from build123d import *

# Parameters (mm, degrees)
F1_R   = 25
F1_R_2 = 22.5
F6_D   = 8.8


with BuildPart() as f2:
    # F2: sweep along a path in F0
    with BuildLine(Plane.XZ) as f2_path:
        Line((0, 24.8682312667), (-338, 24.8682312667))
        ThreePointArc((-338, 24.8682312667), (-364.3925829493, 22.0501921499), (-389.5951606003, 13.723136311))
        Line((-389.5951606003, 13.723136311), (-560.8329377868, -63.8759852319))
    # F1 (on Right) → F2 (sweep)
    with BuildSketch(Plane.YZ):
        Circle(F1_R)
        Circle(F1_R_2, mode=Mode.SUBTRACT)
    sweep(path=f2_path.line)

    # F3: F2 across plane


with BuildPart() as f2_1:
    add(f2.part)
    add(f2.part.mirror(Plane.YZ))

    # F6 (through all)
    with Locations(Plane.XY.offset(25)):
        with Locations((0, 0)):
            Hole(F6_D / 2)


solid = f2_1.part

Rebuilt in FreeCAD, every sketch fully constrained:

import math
import FreeCAD as App
import Part
import Sketcher
from FreeCAD import Vector
Q = App.Units.Quantity

doc = App.newDocument("Part")
params = doc.addObject("Spreadsheet::Sheet", "Params")
for row, (alias, value) in enumerate([
    ("sketch1_diameter", "50 mm"),
    ("sketch1_diameter2", "45 mm"),
    ("sketch2_radius", "125 mm"),
    ("sketch2_width", "338 mm"),
    ("sketch2_length", "188 mm"),
    ("sketch3_diameter", "8.8 mm"),
    ("hole_diameter", "8.8 mm"),
], start=1):
    params.set(f"A{row}", alias)
    params.set(f"B{row}", "=" + value)
    params.setAlias(f"B{row}", alias)

body = doc.addObject("PartDesign::Body", "Body")

sketch1 = doc.addObject("Sketcher::SketchObject", "Sketch")
body.addObject(sketch1)
sketch1.AttachmentSupport = (doc.YZ_Plane, [""])
sketch1.MapMode = "FlatFace"
sketch1.addGeometry(Part.Circle(Vector(0, 0, 0), Vector(0, 0, 1), 25), False)
sketch1.addGeometry(Part.Circle(Vector(0, 0, 0), Vector(0, 0, 1), 22.5), False)
sketch1.addConstraint(Sketcher.Constraint("Coincident", 0, 3, -1, 1))
sketch1.addConstraint(Sketcher.Constraint("Coincident", 1, 3, -1, 1))
sketch1.addConstraint(Sketcher.Constraint("Diameter", 0, Q("50 mm")))
sketch1.addConstraint(Sketcher.Constraint("Diameter", 1, Q("45 mm")))
sketch1.setExpression("Constraints[2]", "Params.sketch1_diameter")
sketch1.setExpression("Constraints[3]", "Params.sketch1_diameter2")

sketch2 = doc.addObject("Sketcher::SketchObject", "Sketch001")
body.addObject(sketch2)
sketch2.AttachmentSupport = (doc.XZ_Plane, [""])
sketch2.MapMode = "FlatFace"
sketch2.addGeometry(Part.LineSegment(Vector(0, 24.868231, 0), Vector(-338, 24.868231, 0)), False)
sketch2.addGeometry(Part.ArcOfCircle(Part.Circle(Vector(-338, -100.131769, 0), Vector(0, 0, 1), 125), math.radians(90), math.radians(114.378413)), False)
sketch2.addGeometry(Part.LineSegment(Vector(-389.595161, 13.723136, 0), Vector(-560.832938, -63.875985, 0)), False)
sketch2.addConstraint(Sketcher.Constraint("Tangent", 0, 2, 1, 1))
sketch2.addConstraint(Sketcher.Constraint("Tangent", 1, 2, 2, 1))
sketch2.addConstraint(Sketcher.Constraint("Horizontal", 0))
sketch2.addConstraint(Sketcher.Constraint("PointOnObject", 0, 1, -2))
sketch2.addConstraint(Sketcher.Constraint("Radius", 1, Q("125 mm")))
sketch2.addConstraint(Sketcher.Constraint("DistanceX", 0, 2, 0, 1, Q("338 mm")))
sketch2.addConstraint(Sketcher.Constraint("Distance", 2, Q("188 mm")))
sketch2.addConstraint(Sketcher.Constraint("DistanceY", 1, 3, -1, 1, Q("100.131769 mm")))
sketch2.addConstraint(Sketcher.Constraint("DistanceX", 1, 2, -1, 1, Q("389.595161 mm")))
sketch2.setExpression("Constraints[4]", "Params.sketch2_radius")
sketch2.setExpression("Constraints[5]", "Params.sketch2_width")
sketch2.setExpression("Constraints[6]", "Params.sketch2_length")
doc.recompute()

additivepipe = doc.addObject("PartDesign::AdditivePipe", "AdditivePipe")
body.addObject(additivepipe)
additivepipe.Profile = sketch1
additivepipe.Spine = (sketch2, ["Edge1", "Edge2", "Edge3"])
body2 = doc.addObject("PartDesign::Body", "Body001")
doc.recompute()

body2.BaseFeature = body
doc.recompute()

mirroring = doc.addObject("Part::Mirroring", "Mirroring")
mirroring.Source = body
mirroring.Base = Vector(0, 0, 0)
mirroring.Normal = Vector(1, 0, 0)
body3 = doc.addObject("PartDesign::Body", "Body002")
body3.BaseFeature = mirroring
boolean = doc.addObject("PartDesign::Boolean", "Boolean")
body2.addObject(boolean)
boolean.Type = "Fuse"
boolean.addObjects([body3])
doc.recompute()

sketch3 = doc.addObject("Sketcher::SketchObject", "Sketch002")
body2.addObject(sketch3)
sketch3.AttachmentSupport = (doc.getObject("XY_Plane001"), [""])
sketch3.MapMode = "FlatFace"
sketch3.AttachmentOffset = App.Placement(Vector(0, 0, 25), App.Rotation())
sketch3.addGeometry(Part.Circle(Vector(0, 0, 0), Vector(0, 0, 1), 4.4), False)
sketch3.addConstraint(Sketcher.Constraint("Coincident", 0, 3, -1, 1))
sketch3.addConstraint(Sketcher.Constraint("Diameter", 0, Q("8.8 mm")))
sketch3.setExpression("Constraints[1]", "Params.sketch3_diameter")
doc.recompute()
hole = doc.addObject("PartDesign::Hole", "Hole")
body2.addObject(hole)
hole.Profile = sketch3
hole.ThreadType = "None"
hole.setExpression("Diameter", "Params.hole_diameter")
hole.DepthType = "ThroughAll"
mirroring.Visibility = False

doc.recompute()
